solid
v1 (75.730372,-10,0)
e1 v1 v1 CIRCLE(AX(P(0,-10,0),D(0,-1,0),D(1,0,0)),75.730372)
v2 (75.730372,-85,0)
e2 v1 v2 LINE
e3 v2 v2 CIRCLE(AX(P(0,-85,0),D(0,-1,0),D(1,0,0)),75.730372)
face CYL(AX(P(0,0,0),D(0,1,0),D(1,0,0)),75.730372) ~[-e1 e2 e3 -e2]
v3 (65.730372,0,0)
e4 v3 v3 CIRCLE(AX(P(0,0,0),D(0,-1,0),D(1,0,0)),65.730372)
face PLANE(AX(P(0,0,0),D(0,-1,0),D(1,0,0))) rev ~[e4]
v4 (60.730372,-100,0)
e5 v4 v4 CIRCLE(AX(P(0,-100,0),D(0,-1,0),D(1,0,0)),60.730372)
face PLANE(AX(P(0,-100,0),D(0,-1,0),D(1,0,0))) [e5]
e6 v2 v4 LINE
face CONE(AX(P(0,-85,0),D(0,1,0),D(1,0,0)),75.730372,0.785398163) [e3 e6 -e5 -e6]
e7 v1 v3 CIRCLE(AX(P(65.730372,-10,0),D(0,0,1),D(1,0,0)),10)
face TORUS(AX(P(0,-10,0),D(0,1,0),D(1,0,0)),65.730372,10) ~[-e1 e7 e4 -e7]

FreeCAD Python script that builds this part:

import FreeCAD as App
import Part
import Sketcher
from FreeCAD import Vector
Q = App.Units.Quantity


def edges_at(feature, points):
    """Names of the edges that pass closest to the given points."""
    edges = feature.Shape.Edges
    near = lambda p: min(range(len(edges)), key=lambda i: edges[i].distToShape(Part.Vertex(*p))[0])
    return sorted({f"Edge{near(p) + 1}" for p in points})

doc = App.newDocument("Part")
body = doc.addObject("PartDesign::Body", "Body")

# Sketch on XZ plane
sketch1 = body.newObject("Sketcher::SketchObject", "Sketch")
sketch1.AttachmentSupport = (doc.getObject("XZ_Plane"), [""])
sketch1.MapMode = "FlatFace"
sketch1.addGeometry(Part.Circle(Vector(0, 0, 0), Vector(0, 0, 1), 75.730372), False)
sketch1.addConstraint([
    Sketcher.Constraint("Coincident", 0, 3, -1, 1),
    Sketcher.Constraint("Diameter", 0, Q("151.460744 mm")),
])
pad1 = body.newObject("PartDesign::Pad", "Pad")
pad1.Profile = sketch1
pad1.Length = 100
doc.recompute()

fillet = body.newObject("PartDesign::Fillet", "Fillet")
fillet.Base = (pad1, edges_at(pad1, [(-75.73, 0, 0)]))
fillet.Radius = 10
doc.recompute()

chamfer = body.newObject("PartDesign::Chamfer", "Chamfer")
chamfer.Base = (fillet, edges_at(fillet, [(-75.73, -100, 0)]))
chamfer.Size = 15

doc.recompute()
